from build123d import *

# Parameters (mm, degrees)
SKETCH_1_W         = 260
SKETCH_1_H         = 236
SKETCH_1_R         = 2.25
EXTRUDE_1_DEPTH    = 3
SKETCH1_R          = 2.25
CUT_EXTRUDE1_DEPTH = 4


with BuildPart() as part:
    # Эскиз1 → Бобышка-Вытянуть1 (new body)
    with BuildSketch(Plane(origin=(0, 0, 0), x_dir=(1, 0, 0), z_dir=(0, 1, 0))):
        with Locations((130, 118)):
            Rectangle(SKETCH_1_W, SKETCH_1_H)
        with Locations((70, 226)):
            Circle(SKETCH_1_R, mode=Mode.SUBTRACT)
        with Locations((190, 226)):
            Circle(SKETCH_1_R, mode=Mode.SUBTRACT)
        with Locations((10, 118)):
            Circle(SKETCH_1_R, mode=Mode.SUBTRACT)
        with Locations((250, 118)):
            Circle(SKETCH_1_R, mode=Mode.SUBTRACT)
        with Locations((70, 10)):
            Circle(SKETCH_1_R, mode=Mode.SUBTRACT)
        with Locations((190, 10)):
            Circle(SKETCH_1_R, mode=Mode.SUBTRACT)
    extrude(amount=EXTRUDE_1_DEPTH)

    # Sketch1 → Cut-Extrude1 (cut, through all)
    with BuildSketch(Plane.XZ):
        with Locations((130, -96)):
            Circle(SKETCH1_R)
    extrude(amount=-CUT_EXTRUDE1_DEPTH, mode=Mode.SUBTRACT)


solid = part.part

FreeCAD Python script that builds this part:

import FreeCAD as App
import Part
import Sketcher
from FreeCAD import Vector


def add_polygon(sketch, points):
    """Adds a closed chain of lines whose ends are joined by coincident constraints."""
    first, n = sketch.GeometryCount, len(points)
    for a, b in zip(points, points[1:] + points[:1]):
        sketch.addGeometry(Part.LineSegment(App.Vector(*a, 0), App.Vector(*b, 0)), False)
    for i in range(n):
        sketch.addConstraint(Sketcher.Constraint("Coincident", first + i, 2, first + (i + 1) % n, 1))

doc = App.newDocument("Part")
body = doc.addObject("PartDesign::Body", "Body")

# Sketch on XZ plane
sketch1 = body.newObject("Sketcher::SketchObject", "Sketch")
sketch1.AttachmentSupport = (doc.getObject("XZ_Plane"), [""])
sketch1.MapMode = "FlatFace"
add_polygon(sketch1, [(0, -236), (0, 0), (260, 0), (260, -236)])  # lines 0-3
sketch1.addGeometry(Part.Circle(Vector(70, -10, 0), Vector(0, 0, 1), 2.25), False)  # 4
sketch1.addGeometry(Part.Circle(Vector(190, -10, 0), Vector(0, 0, 1), 2.25), False)  # 5
sketch1.addGeometry(Part.Circle(Vector(10, -118, 0), Vector(0, 0, 1), 2.25), False)  # 6
sketch1.addGeometry(Part.Circle(Vector(70, -226, 0), Vector(0, 0, 1), 2.25), False)  # 7
sketch1.addGeometry(Part.Circle(Vector(250, -118, 0), Vector(0, 0, 1), 2.25), False)  # 8
sketch1.addGeometry(Part.Circle(Vector(190, -226, 0), Vector(0, 0, 1), 2.25), False)  # 9
sketch1.addConstraint([
    Sketcher.Constraint("Vertical", 0),
    Sketcher.Constraint("Horizontal", 1),
    Sketcher.Constraint("Vertical", 2),
    Sketcher.Constraint("Horizontal", 3),
    Sketcher.Constraint("Coincident", 0, 2, -1, 1),
    Sketcher.Constraint("Equal", 4, 5),
    Sketcher.Constraint("Equal", 5, 6),
    Sketcher.Constraint("Equal", 6, 7),
    Sketcher.Constraint("Equal", 7, 8),
    Sketcher.Constraint("Equal", 8, 9),
    Sketcher.Constraint("Horizontal", 4, 3, 5, 3),
    Sketcher.Constraint("Horizontal", 6, 3, 8, 3),
    Sketcher.Constraint("Horizontal", 7, 3, 9, 3),
    Sketcher.Constraint("Vertical", 4, 3, 7, 3),
    Sketcher.Constraint("Vertical", 5, 3, 9, 3),
    Sketcher.Constraint("Diameter", 4, 4.5),
    Sketcher.Constraint("DistanceX", 1, 1, 1, 2, 260.0),
    Sketcher.Constraint("DistanceY", 0, 1, 0, 2, 236.0),
    Sketcher.Constraint("DistanceX", -1, 1, 4, 3, 70.0),
    Sketcher.Constraint("DistanceY", 4, 3, -1, 1, 10.0),
    Sketcher.Constraint("DistanceX", -1, 1, 5, 3, 190.0),
    Sketcher.Constraint("DistanceX", -1, 1, 6, 3, 10.0),
    Sketcher.Constraint("DistanceY", 6, 3, -1, 1, 118.0),
    Sketcher.Constraint("DistanceY", 7, 3, -1, 1, 226.0),
    Sketcher.Constraint("DistanceX", -1, 1, 8, 3, 250.0),
])
pad1 = body.newObject("PartDesign::Pad", "Pad")
pad1.Profile = sketch1
pad1.Length = 3
pad1.Reversed = True

# Sketch on XZ plane
sketch2 = body.newObject("Sketcher::SketchObject", "Sketch001")
sketch2.AttachmentSupport = (doc.getObject("XZ_Plane"), [""])
sketch2.MapMode = "FlatFace"
sketch2.addGeometry(Part.Circle(Vector(130, -96, 0), Vector(0, 0, 1), 2.25), False)
sketch2.addConstraint([
    Sketcher.Constraint("Diameter", 0, 4.5),
    Sketcher.Constraint("DistanceX", -1, 1, 0, 3, 130.0),
    Sketcher.Constraint("DistanceY", 0, 3, -1, 1, 96.0),
])
pocket1 = body.newObject("PartDesign::Pocket", "Pocket")
pocket1.Profile = sketch2
pocket1.Type = "ThroughAll"

doc.recompute()
